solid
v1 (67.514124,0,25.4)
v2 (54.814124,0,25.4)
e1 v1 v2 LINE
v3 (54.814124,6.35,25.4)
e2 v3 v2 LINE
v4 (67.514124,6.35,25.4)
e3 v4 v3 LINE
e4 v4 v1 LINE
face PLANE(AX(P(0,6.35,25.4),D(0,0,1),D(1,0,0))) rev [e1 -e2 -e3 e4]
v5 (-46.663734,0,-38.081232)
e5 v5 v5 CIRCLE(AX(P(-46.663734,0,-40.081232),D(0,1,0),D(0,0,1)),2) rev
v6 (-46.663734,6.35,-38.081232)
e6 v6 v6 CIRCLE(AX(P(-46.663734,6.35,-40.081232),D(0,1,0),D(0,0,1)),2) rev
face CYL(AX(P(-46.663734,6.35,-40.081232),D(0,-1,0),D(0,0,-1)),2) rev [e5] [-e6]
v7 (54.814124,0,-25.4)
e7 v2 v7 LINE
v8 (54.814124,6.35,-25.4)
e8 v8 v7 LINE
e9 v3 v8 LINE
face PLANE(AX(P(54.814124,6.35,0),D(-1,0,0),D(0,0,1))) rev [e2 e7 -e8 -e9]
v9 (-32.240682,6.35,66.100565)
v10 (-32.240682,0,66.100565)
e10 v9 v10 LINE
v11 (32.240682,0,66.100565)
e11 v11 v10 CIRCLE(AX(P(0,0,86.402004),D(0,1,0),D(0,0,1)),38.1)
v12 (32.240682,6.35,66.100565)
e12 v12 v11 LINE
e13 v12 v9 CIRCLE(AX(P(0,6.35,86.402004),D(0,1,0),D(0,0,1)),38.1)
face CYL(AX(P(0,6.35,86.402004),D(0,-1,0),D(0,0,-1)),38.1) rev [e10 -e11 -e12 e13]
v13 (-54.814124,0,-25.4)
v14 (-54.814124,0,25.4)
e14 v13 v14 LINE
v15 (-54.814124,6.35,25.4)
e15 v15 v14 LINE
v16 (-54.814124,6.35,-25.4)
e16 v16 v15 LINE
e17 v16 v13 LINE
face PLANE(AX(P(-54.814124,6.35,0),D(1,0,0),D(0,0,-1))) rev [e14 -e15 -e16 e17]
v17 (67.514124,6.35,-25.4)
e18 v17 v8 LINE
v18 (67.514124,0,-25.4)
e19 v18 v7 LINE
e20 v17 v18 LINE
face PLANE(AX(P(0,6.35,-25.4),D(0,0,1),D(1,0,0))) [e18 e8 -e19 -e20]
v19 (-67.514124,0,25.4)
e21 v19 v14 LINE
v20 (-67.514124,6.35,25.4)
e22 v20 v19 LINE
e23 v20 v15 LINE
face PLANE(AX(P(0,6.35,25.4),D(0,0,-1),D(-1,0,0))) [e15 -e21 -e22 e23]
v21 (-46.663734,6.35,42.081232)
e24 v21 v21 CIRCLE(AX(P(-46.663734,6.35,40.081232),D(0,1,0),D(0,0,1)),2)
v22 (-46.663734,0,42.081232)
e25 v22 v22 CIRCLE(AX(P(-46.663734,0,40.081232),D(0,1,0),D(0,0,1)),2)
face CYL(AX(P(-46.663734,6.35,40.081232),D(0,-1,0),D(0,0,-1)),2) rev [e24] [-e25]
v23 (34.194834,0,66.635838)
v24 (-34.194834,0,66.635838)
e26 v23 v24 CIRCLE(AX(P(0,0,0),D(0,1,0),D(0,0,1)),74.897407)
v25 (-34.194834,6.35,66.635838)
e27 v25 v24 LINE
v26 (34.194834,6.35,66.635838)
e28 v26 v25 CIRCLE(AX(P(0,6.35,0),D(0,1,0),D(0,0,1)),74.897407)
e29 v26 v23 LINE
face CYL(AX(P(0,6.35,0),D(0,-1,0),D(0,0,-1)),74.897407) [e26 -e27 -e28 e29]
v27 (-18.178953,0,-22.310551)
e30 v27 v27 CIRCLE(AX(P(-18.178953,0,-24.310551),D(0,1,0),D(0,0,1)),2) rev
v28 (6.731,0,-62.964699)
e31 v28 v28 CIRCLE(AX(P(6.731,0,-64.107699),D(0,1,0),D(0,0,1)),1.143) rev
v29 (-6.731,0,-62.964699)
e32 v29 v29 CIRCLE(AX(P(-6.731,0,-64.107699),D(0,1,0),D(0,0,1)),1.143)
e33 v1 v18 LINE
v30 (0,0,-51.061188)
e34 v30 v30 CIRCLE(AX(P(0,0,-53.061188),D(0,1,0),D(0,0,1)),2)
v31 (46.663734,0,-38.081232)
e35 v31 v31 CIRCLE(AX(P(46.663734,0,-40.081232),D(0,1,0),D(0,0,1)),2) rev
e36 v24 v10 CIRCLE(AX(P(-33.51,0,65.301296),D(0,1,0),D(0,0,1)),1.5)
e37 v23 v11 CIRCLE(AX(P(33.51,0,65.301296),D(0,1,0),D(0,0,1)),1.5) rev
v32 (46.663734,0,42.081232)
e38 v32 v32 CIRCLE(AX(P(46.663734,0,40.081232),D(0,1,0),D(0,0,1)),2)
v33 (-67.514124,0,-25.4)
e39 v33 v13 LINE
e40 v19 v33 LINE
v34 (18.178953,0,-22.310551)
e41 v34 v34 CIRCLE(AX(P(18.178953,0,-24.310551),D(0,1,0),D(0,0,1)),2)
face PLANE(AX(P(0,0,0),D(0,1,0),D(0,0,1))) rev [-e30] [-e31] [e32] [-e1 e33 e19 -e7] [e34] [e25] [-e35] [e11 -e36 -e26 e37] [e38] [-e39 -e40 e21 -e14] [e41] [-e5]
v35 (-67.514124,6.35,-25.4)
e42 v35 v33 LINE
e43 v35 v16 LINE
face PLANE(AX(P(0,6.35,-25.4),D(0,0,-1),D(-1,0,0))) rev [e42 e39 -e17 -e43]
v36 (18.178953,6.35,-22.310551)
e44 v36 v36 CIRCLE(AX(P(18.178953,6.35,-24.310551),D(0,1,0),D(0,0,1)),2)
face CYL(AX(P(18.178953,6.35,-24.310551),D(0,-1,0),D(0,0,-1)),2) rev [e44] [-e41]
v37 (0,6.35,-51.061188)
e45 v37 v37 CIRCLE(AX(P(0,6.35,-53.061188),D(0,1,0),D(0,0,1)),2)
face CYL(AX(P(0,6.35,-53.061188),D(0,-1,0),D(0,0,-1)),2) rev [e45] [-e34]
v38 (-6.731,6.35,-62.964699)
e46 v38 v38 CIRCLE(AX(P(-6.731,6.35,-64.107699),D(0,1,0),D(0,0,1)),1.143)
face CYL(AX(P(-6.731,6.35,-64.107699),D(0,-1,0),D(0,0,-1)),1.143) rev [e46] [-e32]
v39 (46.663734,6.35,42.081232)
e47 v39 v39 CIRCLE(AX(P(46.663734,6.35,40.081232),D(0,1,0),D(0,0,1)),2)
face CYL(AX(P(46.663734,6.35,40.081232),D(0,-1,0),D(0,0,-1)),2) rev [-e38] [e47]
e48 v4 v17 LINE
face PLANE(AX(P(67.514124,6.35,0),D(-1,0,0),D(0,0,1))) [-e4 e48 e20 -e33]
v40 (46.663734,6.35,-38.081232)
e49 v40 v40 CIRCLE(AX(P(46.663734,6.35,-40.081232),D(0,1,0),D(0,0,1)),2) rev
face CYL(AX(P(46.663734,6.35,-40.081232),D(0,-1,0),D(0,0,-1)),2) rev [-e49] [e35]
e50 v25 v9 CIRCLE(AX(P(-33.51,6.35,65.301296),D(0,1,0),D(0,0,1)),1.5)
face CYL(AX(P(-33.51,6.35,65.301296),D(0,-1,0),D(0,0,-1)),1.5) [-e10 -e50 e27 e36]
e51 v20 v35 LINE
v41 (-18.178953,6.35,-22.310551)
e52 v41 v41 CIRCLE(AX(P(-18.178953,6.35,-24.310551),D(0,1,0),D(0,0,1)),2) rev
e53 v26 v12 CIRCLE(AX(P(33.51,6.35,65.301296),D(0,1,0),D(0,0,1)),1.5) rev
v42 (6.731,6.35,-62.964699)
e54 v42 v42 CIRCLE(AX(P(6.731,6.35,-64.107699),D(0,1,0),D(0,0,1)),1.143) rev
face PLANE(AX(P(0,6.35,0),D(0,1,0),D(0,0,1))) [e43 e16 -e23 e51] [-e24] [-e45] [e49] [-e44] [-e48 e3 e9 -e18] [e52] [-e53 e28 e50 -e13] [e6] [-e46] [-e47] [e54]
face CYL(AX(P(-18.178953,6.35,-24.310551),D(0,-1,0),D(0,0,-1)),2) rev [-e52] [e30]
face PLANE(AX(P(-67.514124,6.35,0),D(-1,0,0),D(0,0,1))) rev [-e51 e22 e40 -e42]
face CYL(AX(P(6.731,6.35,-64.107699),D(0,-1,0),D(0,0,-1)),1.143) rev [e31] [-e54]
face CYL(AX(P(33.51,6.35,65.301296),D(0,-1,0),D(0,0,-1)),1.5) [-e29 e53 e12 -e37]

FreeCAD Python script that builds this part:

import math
import FreeCAD as App
import Part
import Sketcher

V = App.Vector
Q = App.Units.Quantity

doc = App.newDocument("Part")
body = doc.addObject("PartDesign::Body", "Body")

# Sketch on XZ plane
sketch1 = doc.addObject("Sketcher::SketchObject", "Sketch")
body.addObject(sketch1)
sketch1.AttachmentSupport = (doc.XZ_Plane, [""])
sketch1.MapMode = "FlatFace"
sketch1.addGeometry([
    Part.ArcOfCircle(Part.Circle(V(0, 86.4, 0), V(0, 0, 1), 38.1), math.radians(-148), math.radians(-32)),  # 0
    Part.ArcOfCircle(Part.Circle(V(33.5, 65.3, 0), V(0, 0, 1), 1.5), math.radians(63), math.radians(148)),  # 1
    Part.ArcOfCircle(Part.Circle(V(0, 0, 0), V(0, 0, 1), 74.9), math.radians(117), math.radians(423)),  # 2
    Part.ArcOfCircle(Part.Circle(V(-33.5, 65.3, 0), V(0, 0, 1), 1.5), math.radians(32), math.radians(117)),  # 3
    Part.Circle(V(46.7, 40.1, 0), V(0, 0, 1), 2),  # 4
    Part.LineSegment(V(54.8, 25.4, 0), V(54.8, -25.4, 0)),  # 5
    Part.LineSegment(V(54.8, -25.4, 0), V(67.5, -25.4, 0)),  # 6
    Part.LineSegment(V(67.5, -25.4, 0), V(67.5, 25.4, 0)),  # 7
    Part.LineSegment(V(67.5, 25.4, 0), V(54.8, 25.4, 0)),  # 8
    Part.Circle(V(-46.7, 40.1, 0), V(0, 0, 1), 2),  # 9
    Part.LineSegment(V(-67.5, 25.4, 0), V(-67.5, -25.4, 0)),  # 10
    Part.LineSegment(V(-67.5, -25.4, 0), V(-54.8, -25.4, 0)),  # 11
    Part.LineSegment(V(-54.8, -25.4, 0), V(-54.8, 25.4, 0)),  # 12
    Part.LineSegment(V(-54.8, 25.4, 0), V(-67.5, 25.4, 0)),  # 13
    Part.Circle(V(18.2, -24.3, 0), V(0, 0, 1), 2),  # 14
    Part.Circle(V(46.7, -40.1, 0), V(0, 0, 1), 2),  # 15
    Part.Circle(V(6.7, -64.1, 0), V(0, 0, 1), 1.1),  # 16
    Part.Circle(V(-18.2, -24.3, 0), V(0, 0, 1), 2),  # 17
    Part.Circle(V(0, -53.1, 0), V(0, 0, 1), 2),  # 18
    Part.Circle(V(-6.7, -64.1, 0), V(0, 0, 1), 1.1),  # 19
    Part.Circle(V(-46.7, -40.1, 0), V(0, 0, 1), 2),  # 20
], False)
sketch1.addConstraint([
    Sketcher.Constraint("Tangent", 0, 2, 1, 2),
    Sketcher.Constraint("Tangent", 1, 1, 2, 2),
    Sketcher.Constraint("Tangent", 2, 1, 3, 2),
    Sketcher.Constraint("Tangent", 3, 1, 0, 1),
    Sketcher.Constraint("Coincident", 5, 2, 6, 1),
    Sketcher.Constraint("Coincident", 6, 2, 7, 1),
    Sketcher.Constraint("Coincident", 7, 2, 8, 1),
    Sketcher.Constraint("Coincident", 8, 2, 5, 1),
    Sketcher.Constraint("Coincident", 10, 2, 11, 1),
    Sketcher.Constraint("Coincident", 11, 2, 12, 1),
    Sketcher.Constraint("Coincident", 12, 2, 13, 1),
    Sketcher.Constraint("Coincident", 13, 2, 10, 1),
    Sketcher.Constraint("Vertical", 5),
    Sketcher.Constraint("Horizontal", 6),
    Sketcher.Constraint("Vertical", 7),
    Sketcher.Constraint("Horizontal", 8),
    Sketcher.Constraint("Vertical", 10),
    Sketcher.Constraint("Horizontal", 11),
    Sketcher.Constraint("Vertical", 12),
    Sketcher.Constraint("Horizontal", 13),
    Sketcher.Constraint("Coincident", 2, 3, -1, 1),
    Sketcher.Constraint("Equal", 1, 3),
    Sketcher.Constraint("Equal", 4, 9),
    Sketcher.Constraint("Equal", 9, 14),
    Sketcher.Constraint("Equal", 14, 15),
    Sketcher.Constraint("Equal", 15, 17),
    Sketcher.Constraint("Equal", 17, 18),
    Sketcher.Constraint("Equal", 16, 19),
    Sketcher.Constraint("Equal", 18, 20),
    Sketcher.Constraint("Symmetric", 9, 3, 15, 3, -1, 1),
    Sketcher.Constraint("Symmetric", 4, 3, 20, 3, -1, 1),
    Sketcher.Constraint("Symmetric", 7, 2, 10, 2, -1, 1),
    Sketcher.Constraint("Symmetric", 5, 2, 12, 2, -1, 1),
    Sketcher.Constraint("Symmetric", 4, 3, 9, 3, -2),
    Sketcher.Constraint("Symmetric", 14, 3, 17, 3, -2),
    Sketcher.Constraint("Symmetric", 16, 3, 19, 3, -2),
    Sketcher.Constraint("PointOnObject", 0, 3, -2),
    Sketcher.Constraint("PointOnObject", 18, 3, -2),
    Sketcher.Constraint("Horizontal", 6, 2, 10, 2),
    Sketcher.Constraint("Radius", 0, Q("1.5 in")),
    Sketcher.Constraint("Diameter", 16, Q("0.09 in")),
    Sketcher.Constraint("DistanceY", 5, 2, 5, 1, Q("2 in")),
    Sketcher.Constraint("DistanceX", 6, 1, 6, 2, Q("0.5 in")),
    Sketcher.Constraint("Diameter", 4, Q("4 mm")),
    Sketcher.Constraint("Radius", 1, Q("1.5 mm")),
    Sketcher.Constraint("DistanceX", 19, 3, 16, 3, Q("0.53 in")),
    Sketcher.Constraint("Radius", 2, Q("74.897407 mm")),
    Sketcher.Constraint("DistanceX", -1, 1, 1, 3, Q("33.51 mm")),
    Sketcher.Constraint("DistanceY", 16, 3, -1, 1, Q("64.107699 mm")),
    Sketcher.Constraint("DistanceX", 1, 1, 4, 3, Q("12.4689 mm")),
    Sketcher.Constraint("DistanceY", -1, 1, 4, 3, Q("40.081232 mm")),
    Sketcher.Constraint("DistanceY", 14, 3, -1, 1, Q("24.310551 mm")),
    Sketcher.Constraint("DistanceX", 14, 3, 4, 3, Q("28.484781 mm")),
    Sketcher.Constraint("DistanceY", 16, 3, 18, 3, Q("11.046511 mm")),
    Sketcher.Constraint("DistanceX", 15, 3, 5, 2, Q("8.15039 mm")),
])
pad1 = doc.addObject("PartDesign::Pad", "Pad")
body.addObject(pad1)
pad1.Profile = sketch1
pad1.Length = Q("0.25 in")
pad1.Reversed = True

doc.recompute()
